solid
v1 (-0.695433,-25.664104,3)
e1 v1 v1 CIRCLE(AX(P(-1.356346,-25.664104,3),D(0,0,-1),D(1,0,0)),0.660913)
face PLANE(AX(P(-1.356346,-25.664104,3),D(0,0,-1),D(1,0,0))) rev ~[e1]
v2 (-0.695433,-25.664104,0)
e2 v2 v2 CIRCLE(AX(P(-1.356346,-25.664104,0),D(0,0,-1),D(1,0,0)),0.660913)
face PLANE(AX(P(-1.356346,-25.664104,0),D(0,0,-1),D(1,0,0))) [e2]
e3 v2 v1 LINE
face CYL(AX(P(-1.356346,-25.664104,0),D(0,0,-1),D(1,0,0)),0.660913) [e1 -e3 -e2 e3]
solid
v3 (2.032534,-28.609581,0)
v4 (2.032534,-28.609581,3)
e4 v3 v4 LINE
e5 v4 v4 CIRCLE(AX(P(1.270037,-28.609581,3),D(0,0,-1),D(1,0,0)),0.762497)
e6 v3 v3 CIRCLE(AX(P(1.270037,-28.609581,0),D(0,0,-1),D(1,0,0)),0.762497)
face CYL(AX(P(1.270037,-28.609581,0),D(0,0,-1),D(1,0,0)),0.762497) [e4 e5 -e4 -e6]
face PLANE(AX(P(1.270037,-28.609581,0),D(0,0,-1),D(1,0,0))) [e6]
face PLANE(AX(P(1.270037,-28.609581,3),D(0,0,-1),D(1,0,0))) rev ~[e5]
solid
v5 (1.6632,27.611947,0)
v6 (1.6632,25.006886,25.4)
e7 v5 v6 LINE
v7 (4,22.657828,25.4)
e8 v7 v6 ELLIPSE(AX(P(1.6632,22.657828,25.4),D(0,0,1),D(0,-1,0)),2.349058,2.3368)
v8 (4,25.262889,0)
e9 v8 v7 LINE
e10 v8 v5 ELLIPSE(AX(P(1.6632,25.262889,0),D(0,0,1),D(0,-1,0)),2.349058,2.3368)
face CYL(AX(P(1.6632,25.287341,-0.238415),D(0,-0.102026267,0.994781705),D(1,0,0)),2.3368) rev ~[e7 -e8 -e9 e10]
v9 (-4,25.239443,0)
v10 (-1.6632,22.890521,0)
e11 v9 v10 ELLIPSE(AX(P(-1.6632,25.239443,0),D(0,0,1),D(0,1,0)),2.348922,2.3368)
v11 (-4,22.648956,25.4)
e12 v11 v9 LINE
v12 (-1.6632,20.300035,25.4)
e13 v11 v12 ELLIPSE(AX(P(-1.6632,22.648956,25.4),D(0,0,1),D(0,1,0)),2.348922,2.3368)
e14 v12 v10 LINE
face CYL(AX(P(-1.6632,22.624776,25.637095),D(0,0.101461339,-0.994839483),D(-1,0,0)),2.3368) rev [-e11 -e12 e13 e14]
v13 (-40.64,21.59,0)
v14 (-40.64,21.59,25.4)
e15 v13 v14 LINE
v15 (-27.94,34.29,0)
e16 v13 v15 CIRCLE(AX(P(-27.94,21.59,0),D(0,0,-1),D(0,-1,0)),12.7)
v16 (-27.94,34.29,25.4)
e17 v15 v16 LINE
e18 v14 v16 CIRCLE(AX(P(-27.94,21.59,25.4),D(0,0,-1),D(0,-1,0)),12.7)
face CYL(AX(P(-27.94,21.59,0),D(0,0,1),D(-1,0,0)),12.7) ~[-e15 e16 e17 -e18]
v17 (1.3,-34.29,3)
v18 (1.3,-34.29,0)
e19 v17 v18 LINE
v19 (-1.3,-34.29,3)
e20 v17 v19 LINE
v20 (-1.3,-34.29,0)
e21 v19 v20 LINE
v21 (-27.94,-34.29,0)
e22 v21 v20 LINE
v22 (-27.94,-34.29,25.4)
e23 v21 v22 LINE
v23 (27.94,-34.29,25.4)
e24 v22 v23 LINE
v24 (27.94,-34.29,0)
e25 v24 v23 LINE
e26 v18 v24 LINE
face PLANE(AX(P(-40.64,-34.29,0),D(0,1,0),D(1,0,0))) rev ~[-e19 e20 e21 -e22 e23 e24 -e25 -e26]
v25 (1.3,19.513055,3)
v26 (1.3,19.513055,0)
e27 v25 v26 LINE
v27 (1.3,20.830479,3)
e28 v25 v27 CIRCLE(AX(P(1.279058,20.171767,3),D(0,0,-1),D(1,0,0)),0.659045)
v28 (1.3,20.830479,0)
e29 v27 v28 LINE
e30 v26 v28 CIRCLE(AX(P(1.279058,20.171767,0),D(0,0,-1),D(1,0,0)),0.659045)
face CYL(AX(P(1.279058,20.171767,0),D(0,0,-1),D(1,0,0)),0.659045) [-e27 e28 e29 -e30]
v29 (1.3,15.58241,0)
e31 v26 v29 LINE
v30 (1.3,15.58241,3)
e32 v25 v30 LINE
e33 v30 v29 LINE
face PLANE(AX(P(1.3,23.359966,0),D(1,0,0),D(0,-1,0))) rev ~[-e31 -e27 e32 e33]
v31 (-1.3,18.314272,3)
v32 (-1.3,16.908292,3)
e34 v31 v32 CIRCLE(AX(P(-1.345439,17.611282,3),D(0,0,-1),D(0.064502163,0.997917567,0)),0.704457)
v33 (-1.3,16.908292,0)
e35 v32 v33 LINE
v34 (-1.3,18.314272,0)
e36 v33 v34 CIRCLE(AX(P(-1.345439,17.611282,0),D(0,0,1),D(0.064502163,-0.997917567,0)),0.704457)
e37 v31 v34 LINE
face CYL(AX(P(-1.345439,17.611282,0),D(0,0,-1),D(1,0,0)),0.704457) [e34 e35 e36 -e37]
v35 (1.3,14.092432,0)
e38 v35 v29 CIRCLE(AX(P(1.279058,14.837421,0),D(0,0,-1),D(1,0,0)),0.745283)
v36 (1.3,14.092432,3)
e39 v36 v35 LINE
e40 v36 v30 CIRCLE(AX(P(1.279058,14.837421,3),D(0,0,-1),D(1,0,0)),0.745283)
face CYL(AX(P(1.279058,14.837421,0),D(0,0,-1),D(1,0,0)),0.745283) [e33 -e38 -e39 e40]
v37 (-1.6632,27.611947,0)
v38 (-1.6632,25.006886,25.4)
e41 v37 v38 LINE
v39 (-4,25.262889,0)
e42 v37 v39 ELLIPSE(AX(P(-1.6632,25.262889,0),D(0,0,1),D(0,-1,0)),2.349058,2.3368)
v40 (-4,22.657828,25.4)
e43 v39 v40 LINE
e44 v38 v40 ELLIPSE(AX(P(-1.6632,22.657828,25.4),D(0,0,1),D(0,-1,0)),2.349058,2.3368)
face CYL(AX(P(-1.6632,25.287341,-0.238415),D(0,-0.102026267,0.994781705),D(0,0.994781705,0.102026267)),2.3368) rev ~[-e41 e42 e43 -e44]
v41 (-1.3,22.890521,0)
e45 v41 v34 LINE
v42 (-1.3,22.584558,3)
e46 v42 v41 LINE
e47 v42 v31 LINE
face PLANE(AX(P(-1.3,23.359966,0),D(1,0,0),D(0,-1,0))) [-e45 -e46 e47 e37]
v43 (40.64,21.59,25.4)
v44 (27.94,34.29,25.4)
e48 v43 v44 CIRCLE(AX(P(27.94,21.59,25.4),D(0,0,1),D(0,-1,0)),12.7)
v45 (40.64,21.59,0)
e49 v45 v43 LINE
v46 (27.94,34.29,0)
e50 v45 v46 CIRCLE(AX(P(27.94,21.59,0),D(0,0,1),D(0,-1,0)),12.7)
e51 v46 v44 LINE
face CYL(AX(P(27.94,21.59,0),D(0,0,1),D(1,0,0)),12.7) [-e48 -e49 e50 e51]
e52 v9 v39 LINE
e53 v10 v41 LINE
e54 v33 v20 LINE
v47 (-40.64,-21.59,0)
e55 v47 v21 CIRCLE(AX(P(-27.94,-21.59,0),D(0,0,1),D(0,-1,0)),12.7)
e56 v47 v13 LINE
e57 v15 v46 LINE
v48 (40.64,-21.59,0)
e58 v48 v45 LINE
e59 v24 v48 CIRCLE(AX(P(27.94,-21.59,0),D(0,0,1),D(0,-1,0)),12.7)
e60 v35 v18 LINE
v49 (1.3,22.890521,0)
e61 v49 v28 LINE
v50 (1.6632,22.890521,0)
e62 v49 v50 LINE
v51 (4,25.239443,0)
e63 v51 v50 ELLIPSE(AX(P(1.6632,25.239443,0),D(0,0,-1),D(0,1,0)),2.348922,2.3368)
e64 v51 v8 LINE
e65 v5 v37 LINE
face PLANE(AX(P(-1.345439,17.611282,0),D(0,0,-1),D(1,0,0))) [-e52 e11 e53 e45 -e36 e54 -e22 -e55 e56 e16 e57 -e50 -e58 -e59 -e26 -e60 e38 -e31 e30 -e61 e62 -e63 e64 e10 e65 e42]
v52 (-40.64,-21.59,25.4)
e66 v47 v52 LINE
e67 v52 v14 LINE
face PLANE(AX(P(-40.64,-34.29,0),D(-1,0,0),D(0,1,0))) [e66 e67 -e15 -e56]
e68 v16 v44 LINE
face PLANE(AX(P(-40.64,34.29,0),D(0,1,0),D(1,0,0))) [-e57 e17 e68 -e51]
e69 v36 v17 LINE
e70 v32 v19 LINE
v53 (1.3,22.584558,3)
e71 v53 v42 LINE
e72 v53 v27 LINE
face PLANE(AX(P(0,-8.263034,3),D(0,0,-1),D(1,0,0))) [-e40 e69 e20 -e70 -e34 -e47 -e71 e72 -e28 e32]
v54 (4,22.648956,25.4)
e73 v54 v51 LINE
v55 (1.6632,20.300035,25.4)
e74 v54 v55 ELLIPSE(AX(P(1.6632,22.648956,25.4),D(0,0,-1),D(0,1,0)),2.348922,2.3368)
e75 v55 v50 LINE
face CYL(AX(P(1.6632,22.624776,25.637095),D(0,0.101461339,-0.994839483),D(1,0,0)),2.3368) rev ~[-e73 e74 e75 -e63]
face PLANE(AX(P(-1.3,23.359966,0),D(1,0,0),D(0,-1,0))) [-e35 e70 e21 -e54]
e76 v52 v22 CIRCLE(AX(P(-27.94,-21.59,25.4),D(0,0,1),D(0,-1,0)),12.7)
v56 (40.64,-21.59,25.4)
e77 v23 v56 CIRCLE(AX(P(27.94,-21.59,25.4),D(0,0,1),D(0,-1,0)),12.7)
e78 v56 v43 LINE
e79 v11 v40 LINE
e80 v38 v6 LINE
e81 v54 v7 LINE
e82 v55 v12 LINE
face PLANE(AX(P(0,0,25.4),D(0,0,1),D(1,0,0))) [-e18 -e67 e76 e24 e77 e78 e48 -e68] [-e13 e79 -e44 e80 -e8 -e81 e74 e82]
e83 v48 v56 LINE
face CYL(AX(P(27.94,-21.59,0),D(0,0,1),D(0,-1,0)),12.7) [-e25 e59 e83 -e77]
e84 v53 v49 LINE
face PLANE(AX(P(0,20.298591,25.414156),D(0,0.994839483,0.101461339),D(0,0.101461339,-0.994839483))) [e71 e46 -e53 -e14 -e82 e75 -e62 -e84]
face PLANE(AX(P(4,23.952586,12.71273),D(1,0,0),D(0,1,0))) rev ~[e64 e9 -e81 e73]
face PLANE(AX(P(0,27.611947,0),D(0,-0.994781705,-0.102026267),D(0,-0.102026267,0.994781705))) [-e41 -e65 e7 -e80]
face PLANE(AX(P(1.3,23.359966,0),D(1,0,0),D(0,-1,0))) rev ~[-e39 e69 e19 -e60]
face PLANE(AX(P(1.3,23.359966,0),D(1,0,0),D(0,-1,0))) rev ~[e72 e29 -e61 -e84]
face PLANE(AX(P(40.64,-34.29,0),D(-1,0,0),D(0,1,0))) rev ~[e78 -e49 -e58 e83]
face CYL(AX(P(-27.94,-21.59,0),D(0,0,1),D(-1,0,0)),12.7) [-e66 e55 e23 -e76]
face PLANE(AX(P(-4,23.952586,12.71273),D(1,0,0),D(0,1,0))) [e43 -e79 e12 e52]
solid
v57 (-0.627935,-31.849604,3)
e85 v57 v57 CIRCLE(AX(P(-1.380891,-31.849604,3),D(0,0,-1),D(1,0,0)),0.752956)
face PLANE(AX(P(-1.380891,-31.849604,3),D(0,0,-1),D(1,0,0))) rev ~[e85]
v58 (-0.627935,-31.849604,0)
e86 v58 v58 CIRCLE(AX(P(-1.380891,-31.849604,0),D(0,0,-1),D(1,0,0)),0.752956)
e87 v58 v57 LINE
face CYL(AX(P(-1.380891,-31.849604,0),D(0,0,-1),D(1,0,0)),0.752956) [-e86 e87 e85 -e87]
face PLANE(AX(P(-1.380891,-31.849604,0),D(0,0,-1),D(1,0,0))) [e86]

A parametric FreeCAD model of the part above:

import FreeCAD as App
import Part
import Sketcher
Q = App.Units.Quantity


def edges_at(feature, points):
    """Names of the edges that pass closest to the given points."""
    edges = feature.Shape.Edges
    near = lambda p: min(range(len(edges)), key=lambda i: edges[i].distToShape(Part.Vertex(*p))[0])
    return sorted({f"Edge{near(p) + 1}" for p in points})

doc = App.newDocument("Part")
body = doc.addObject("PartDesign::Body", "Body")

# Sketch on XY plane
sketch1 = body.newObject("Sketcher::SketchObject", "Sketch")
sketch1.AttachmentSupport = (doc.getObject("XY_Plane"), [""])
sketch1.MapMode = "FlatFace"
sketch1.addGeometry([
    Part.LineSegment(App.Vector(-40.64, 34.29, 0), App.Vector(-40.64, -34.29, 0)),
    Part.LineSegment(App.Vector(-40.64, -34.29, 0), App.Vector(40.64, -34.29, 0)),
    Part.LineSegment(App.Vector(40.64, -34.29, 0), App.Vector(40.64, 34.29, 0)),
    Part.LineSegment(App.Vector(40.64, 34.29, 0), App.Vector(-40.64, 34.29, 0)),
], False)
sketch1.addConstraint([
    Sketcher.Constraint("Coincident", 0, 2, 1, 1),
    Sketcher.Constraint("Coincident", 1, 2, 2, 1),
    Sketcher.Constraint("Coincident", 2, 2, 3, 1),
    Sketcher.Constraint("Coincident", 3, 2, 0, 1),
    Sketcher.Constraint("Vertical", 0),
    Sketcher.Constraint("Horizontal", 1),
    Sketcher.Constraint("Vertical", 2),
    Sketcher.Constraint("Horizontal", 3),
    Sketcher.Constraint("Symmetric", 0, 2, 2, 2, -1, 1),
    Sketcher.Constraint("DistanceX", 1, 1, 1, 2, Q("3.2 in")),
    Sketcher.Constraint("DistanceY", 0, 2, 0, 1, Q("2.7 in")),
])
pad1 = body.newObject("PartDesign::Pad", "Pad")
pad1.Profile = sketch1
pad1.Length = Q("1 in")
doc.recompute()

fillet = body.newObject("PartDesign::Fillet", "Fillet")
fillet.Base = (pad1, edges_at(pad1, [
    (-40.64, 34.29, 12.7),
    (40.64, 34.29, 12.7),
    (40.64, -34.29, 12.7),
    (-40.64, -34.29, 12.7),
]))
fillet.Radius = Q("0.5 in")

# Sketch on YZ plane
sketch2 = body.newObject("Sketcher::SketchObject", "Sketch001")
sketch2.AttachmentSupport = (doc.getObject("YZ_Plane"), [""])
sketch2.MapMode = "FlatFace"
sketch2.addGeometry([
    Part.LineSegment(App.Vector(25.001539, 25.452133, 0), App.Vector(20.298591, 25.414156, 0)),
    Part.LineSegment(App.Vector(20.298591, 25.414156, 0), App.Vector(22.890521, 0, 0)),
    Part.LineSegment(App.Vector(22.890521, 0, 0), App.Vector(27.611947, 0, 0)),
    Part.LineSegment(App.Vector(27.611947, 0, 0), App.Vector(25.001539, 25.452133, 0)),
], False)
sketch2.addConstraint([
    Sketcher.Constraint("Coincident", 0, 2, 1, 1),
    Sketcher.Constraint("Coincident", 1, 2, 2, 1),
    Sketcher.Constraint("Coincident", 2, 2, 3, 1),
    Sketcher.Constraint("Coincident", 3, 2, 0, 1),
    Sketcher.Constraint("Horizontal", 2),
    Sketcher.Constraint("PointOnObject", 1, 2, -1),
    Sketcher.Constraint("Distance", 0, 4.703101),
    Sketcher.Constraint("DistanceX", 2, 1, 2, 2, 4.721426),
    Sketcher.Constraint("DistanceX", -1, 1, 0, 2, 20.298591),
    Sketcher.Constraint("DistanceX", -1, 1, 1, 2, 22.890521),
    Sketcher.Constraint("DistanceX", -1, 1, 3, 2, 25.001539),
    Sketcher.Constraint("Distance", 1, 25.545987),
])
pocket1 = body.newObject("PartDesign::Pocket", "Pocket")
pocket1.Profile = sketch2
pocket1.Length = 4

# Sketch on YZ plane
sketch3 = body.newObject("Sketcher::SketchObject", "Sketch002")
sketch3.AttachmentSupport = (doc.getObject("YZ_Plane"), [""])
sketch3.MapMode = "FlatFace"
sketch3.addGeometry([
    Part.LineSegment(App.Vector(25.001539, 25.452133, 0), App.Vector(20.298591, 25.414156, 0)),
    Part.LineSegment(App.Vector(20.298591, 25.414156, 0), App.Vector(22.890521, 0, 0)),
    Part.LineSegment(App.Vector(22.890521, 0, 0), App.Vector(27.611947, 0, 0)),
    Part.LineSegment(App.Vector(27.611947, 0, 0), App.Vector(25.001539, 25.452133, 0)),
], False)
sketch3.addConstraint([
    Sketcher.Constraint("Coincident", 0, 2, 1, 1),
    Sketcher.Constraint("Coincident", 1, 2, 2, 1),
    Sketcher.Constraint("Coincident", 2, 2, 3, 1),
    Sketcher.Constraint("Coincident", 3, 2, 0, 1),
    Sketcher.Constraint("Horizontal", 2),
    Sketcher.Constraint("PointOnObject", 1, 2, -1),
    Sketcher.Constraint("Distance", 0, 4.703101),
    Sketcher.Constraint("DistanceX", 2, 1, 2, 2, 4.721426),
    Sketcher.Constraint("DistanceX", -1, 1, 0, 2, 20.298591),
    Sketcher.Constraint("DistanceX", -1, 1, 1, 2, 22.890521),
    Sketcher.Constraint("DistanceX", -1, 1, 3, 2, 25.001539),
    Sketcher.Constraint("Distance", 1, 25.545987),
])
pocket2 = body.newObject("PartDesign::Pocket", "Pocket001")
pocket2.Profile = sketch3
pocket2.Length = 4
pocket2.Reversed = True
doc.recompute()

fillet2 = body.newObject("PartDesign::Fillet", "Fillet001")
fillet2.Base = (pocket2, edges_at(pocket2, [
    (4, 26.309, 12.7),
    (4, 21.595, 12.7),
    (-4, 21.595, 12.7),
    (-4, 26.309, 12.7),
]))
fillet2.Radius = Q("0.092 in")

# Sketch on XY plane
sketch4 = body.newObject("Sketcher::SketchObject", "Sketch003")
sketch4.AttachmentSupport = (doc.getObject("XY_Plane"), [""])
sketch4.MapMode = "FlatFace"
sketch4.addGeometry([
    Part.LineSegment(App.Vector(-1.3, -39.886034, 0), App.Vector(-1.3, 23.359966, 0)),
    Part.LineSegment(App.Vector(-1.3, 23.359966, 0), App.Vector(1.3, 23.359966, 0)),
    Part.LineSegment(App.Vector(1.3, 23.359966, 0), App.Vector(1.3, -39.886034, 0)),
    Part.LineSegment(App.Vector(1.3, -39.886034, 0), App.Vector(-1.3, -39.886034, 0)),
], False)
sketch4.addConstraint([
    Sketcher.Constraint("Coincident", 0, 2, 1, 1),
    Sketcher.Constraint("Coincident", 1, 2, 2, 1),
    Sketcher.Constraint("Coincident", 2, 2, 3, 1),
    Sketcher.Constraint("Coincident", 3, 2, 0, 1),
    Sketcher.Constraint("Vertical", 0),
    Sketcher.Constraint("Horizontal", 1),
    Sketcher.Constraint("Vertical", 2),
    Sketcher.Constraint("Horizontal", 3),
    Sketcher.Constraint("DistanceY", 0, 1, 0, 2, Q("2.49 in")),
    Sketcher.Constraint("DistanceX", 1, 1, 1, 2, 2.6),
    Sketcher.Constraint("DistanceX", 0, 2, -1, 1, 1.3),
    Sketcher.Constraint("DistanceY", -1, 1, 0, 2, 23.359966),
])
pocket3 = body.newObject("PartDesign::Pocket", "Pocket002")
pocket3.Profile = sketch4
pocket3.Length = 3
pocket3.Reversed = True

# Sketch on XY plane
sketch5 = body.newObject("Sketcher::SketchObject", "Sketch004")
sketch5.AttachmentSupport = (doc.getObject("XY_Plane"), [""])
sketch5.MapMode = "FlatFace"
sketch5.addGeometry([
    Part.Circle(App.Vector(-1.345439, 17.611282, 0), App.Vector(0, 0, 1), 0.704457),
    Part.Circle(App.Vector(1.279058, 14.837421, 0), App.Vector(0, 0, 1), 0.745283),
    Part.Circle(App.Vector(1.279058, 20.171767, 0), App.Vector(0, 0, 1), 0.659045),
], False)
sketch5.addConstraint([
    Sketcher.Constraint("Vertical", 1, 3, 2, 3),
    Sketcher.Constraint("Diameter", 2, 1.31809),
    Sketcher.Constraint("Diameter", 0, 1.408914),
    Sketcher.Constraint("Diameter", 1, 1.490566),
    Sketcher.Constraint("DistanceX", 0, 3, -1, 1, 1.345439),
    Sketcher.Constraint("DistanceY", -1, 1, 0, 3, 17.611282),
    Sketcher.Constraint("DistanceY", -1, 1, 1, 3, 14.837421),
    Sketcher.Constraint("DistanceX", -1, 1, 1, 3, 1.279058),
    Sketcher.Constraint("DistanceY", -1, 1, 2, 3, 20.171767),
])
pad2 = body.newObject("PartDesign::Pad", "Pad001")
pad2.Profile = sketch5
pad2.Length = 3
body2 = doc.addObject("PartDesign::Body", "Body001")
body2.AllowCompound = True

# Sketch on XY plane
sketch6 = body2.newObject("Sketcher::SketchObject", "Sketch005")
sketch6.AttachmentSupport = (doc.getObject("XY_Plane001"), [""])
sketch6.MapMode = "FlatFace"
sketch6.addGeometry([
    Part.Circle(App.Vector(-1.380891, -31.849604, 0), App.Vector(0, 0, 1), 0.752956),
    Part.Circle(App.Vector(1.270037, -28.609581, 0), App.Vector(0, 0, 1), 0.762497),
    Part.Circle(App.Vector(-1.356346, -25.664104, 0), App.Vector(0, 0, 1), 0.660913),
], False)
sketch6.addConstraint([
    Sketcher.Constraint("Diameter", 0, 1.505912),
    Sketcher.Constraint("Diameter", 1, 1.524994),
    Sketcher.Constraint("Diameter", 2, 1.321826),
    Sketcher.Constraint("DistanceY", 0, 3, 2, 3, 6.1855),
    Sketcher.Constraint("DistanceX", 0, 3, -1, 1, 1.380891),
    Sketcher.Constraint("DistanceY", 1, 3, -1, 1, 28.609581),
    Sketcher.Constraint("DistanceX", 0, 3, 1, 3, 2.650928),
    Sketcher.Constraint("DistanceY", 0, 3, -1, 1, 31.849604),
    Sketcher.Constraint("DistanceX", 2, 3, -1, 1, 1.356346),
])
pad3 = body2.newObject("PartDesign::Pad", "Pad002")
pad3.Profile = sketch6
pad3.Length = 3

doc.recompute()
